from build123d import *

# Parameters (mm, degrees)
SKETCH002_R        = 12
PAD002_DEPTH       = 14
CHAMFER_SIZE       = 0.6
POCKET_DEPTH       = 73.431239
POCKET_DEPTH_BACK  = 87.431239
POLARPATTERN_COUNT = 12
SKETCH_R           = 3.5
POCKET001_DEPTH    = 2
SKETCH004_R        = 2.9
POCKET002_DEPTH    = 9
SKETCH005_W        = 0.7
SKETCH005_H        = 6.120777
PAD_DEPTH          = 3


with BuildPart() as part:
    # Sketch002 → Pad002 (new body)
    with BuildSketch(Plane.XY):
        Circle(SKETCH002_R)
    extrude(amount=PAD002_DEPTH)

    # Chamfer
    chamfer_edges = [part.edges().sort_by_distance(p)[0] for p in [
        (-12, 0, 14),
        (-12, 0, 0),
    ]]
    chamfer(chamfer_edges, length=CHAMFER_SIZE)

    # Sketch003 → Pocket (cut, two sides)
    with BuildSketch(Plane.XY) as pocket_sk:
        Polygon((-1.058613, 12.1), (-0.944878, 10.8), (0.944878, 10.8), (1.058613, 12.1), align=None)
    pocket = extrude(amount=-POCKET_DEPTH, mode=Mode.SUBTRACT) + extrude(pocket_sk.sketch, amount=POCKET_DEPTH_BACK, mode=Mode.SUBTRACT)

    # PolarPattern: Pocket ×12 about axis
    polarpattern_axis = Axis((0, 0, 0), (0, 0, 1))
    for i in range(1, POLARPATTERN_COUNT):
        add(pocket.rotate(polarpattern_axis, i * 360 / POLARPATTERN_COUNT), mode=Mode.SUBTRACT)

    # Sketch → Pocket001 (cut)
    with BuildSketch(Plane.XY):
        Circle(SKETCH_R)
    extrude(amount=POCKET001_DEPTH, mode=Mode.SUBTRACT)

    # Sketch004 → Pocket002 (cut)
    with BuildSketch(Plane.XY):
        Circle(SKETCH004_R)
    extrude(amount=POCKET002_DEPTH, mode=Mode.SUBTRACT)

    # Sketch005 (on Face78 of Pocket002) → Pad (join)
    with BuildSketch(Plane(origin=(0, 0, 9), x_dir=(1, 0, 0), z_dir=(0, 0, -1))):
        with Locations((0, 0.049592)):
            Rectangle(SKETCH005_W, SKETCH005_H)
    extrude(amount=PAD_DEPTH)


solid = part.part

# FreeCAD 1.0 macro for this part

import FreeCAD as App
import Part
import Sketcher

V = App.Vector
Q = App.Units.Quantity


def edges_at(feature, points):
    """Names of the edges that pass closest to the given points."""
    edges = feature.Shape.Edges
    near = lambda p: min(range(len(edges)), key=lambda i: edges[i].distToShape(Part.Vertex(*p))[0])
    return sorted({f"Edge{near(p) + 1}" for p in points})

doc = App.newDocument("Part")
body = doc.addObject("PartDesign::Body", "Body")

# Sketch on XY plane
sketch1 = body.newObject("Sketcher::SketchObject", "Sketch")
sketch1.AttachmentSupport = (doc.getObject("XY_Plane"), [""])
sketch1.MapMode = "FlatFace"
sketch1.addGeometry(Part.Circle(V(0, 0, 0), V(0, 0, 1), 12), False)
sketch1.addConstraint(Sketcher.Constraint("Coincident", 0, 3, -1, 1))
sketch1.addConstraint(Sketcher.Constraint("Diameter", 0, 24.0))
pad1 = body.newObject("PartDesign::Pad", "Pad")
pad1.Profile = sketch1
pad1.Length = 14
doc.recompute()

chamfer = body.newObject("PartDesign::Chamfer", "Chamfer")
chamfer.Base = (pad1, edges_at(pad1, [(-12, 0, 14), (-12, 0, 0)]))
chamfer.Size = 0.6

# Sketch on XY plane
sketch2 = body.newObject("Sketcher::SketchObject", "Sketch001")
sketch2.AttachmentSupport = (doc.getObject("XY_Plane"), [""])
sketch2.MapMode = "FlatFace"
sketch2.addGeometry(Part.LineSegment(V(-1.058613, 12.1, 0), V(-0.944878, 10.8, 0)), False)
sketch2.addGeometry(Part.LineSegment(V(-0.944878, 10.8, 0), V(0.944878, 10.8, 0)), False)
sketch2.addGeometry(Part.LineSegment(V(0.944878, 10.8, 0), V(1.058613, 12.1, 0)), False)
sketch2.addGeometry(Part.LineSegment(V(1.058613, 12.1, 0), V(-1.058613, 12.1, 0)), False)
sketch2.addConstraint(Sketcher.Constraint("Coincident", 0, 2, 1, 1))
sketch2.addConstraint(Sketcher.Constraint("Coincident", 1, 2, 2, 1))
sketch2.addConstraint(Sketcher.Constraint("Coincident", 2, 2, 3, 1))
sketch2.addConstraint(Sketcher.Constraint("Coincident", 3, 2, 0, 1))
sketch2.addConstraint(Sketcher.Constraint("Horizontal", 1))
sketch2.addConstraint(Sketcher.Constraint("Horizontal", 3))
sketch2.addConstraint(Sketcher.Constraint("Equal", 0, 2))
sketch2.addConstraint(Sketcher.Constraint("Angle", 0, Q("-85.000011 deg")))
sketch2.addConstraint(Sketcher.Constraint("DistanceY", -1, 1, 0, 2, 10.8))
sketch2.addConstraint(Sketcher.Constraint("DistanceY", -1, 1, 2, 2, 12.1))
sketch2.addConstraint(Sketcher.Constraint("DistanceX", 1, 1, 1, 2, 1.889756))
sketch2.addConstraint(Sketcher.Constraint("DistanceX", 0, 2, -1, 1, 0.944878))
pocket1 = body.newObject("PartDesign::Pocket", "Pocket")
pocket1.Profile = sketch2
pocket1.Type = "ThroughAll"
pocket1.Midplane = True
doc.recompute()

polarpattern = body.newObject("PartDesign::PolarPattern", "PolarPattern")
polarpattern.Originals = [pocket1]
polarpattern.Axis = (doc.getObject("Z_Axis"), [""])
polarpattern.Angle = 360
polarpattern.Occurrences = 12
body.Tip = polarpattern

# Sketch on XY plane
sketch3 = body.newObject("Sketcher::SketchObject", "Sketch002")
sketch3.AttachmentSupport = (doc.getObject("XY_Plane"), [""])
sketch3.MapMode = "FlatFace"
sketch3.addGeometry(Part.Circle(V(0, 0, 0), V(0, 0, 1), 3.5), False)
sketch3.addConstraint(Sketcher.Constraint("Coincident", 0, 3, -1, 1))
sketch3.addConstraint(Sketcher.Constraint("Diameter", 0, 7.0))
pocket2 = body.newObject("PartDesign::Pocket", "Pocket001")
pocket2.Profile = sketch3
pocket2.Length = 2
pocket2.Reversed = True

# Sketch on XY plane
sketch4 = body.newObject("Sketcher::SketchObject", "Sketch003")
sketch4.AttachmentSupport = (doc.getObject("XY_Plane"), [""])
sketch4.MapMode = "FlatFace"
sketch4.addGeometry(Part.Circle(V(0, 0, 0), V(0, 0, 1), 2.9), False)
sketch4.addConstraint(Sketcher.Constraint("Coincident", 0, 3, -1, 1))
sketch4.addConstraint(Sketcher.Constraint("Diameter", 0, 5.8))
pocket3 = body.newObject("PartDesign::Pocket", "Pocket002")
pocket3.Profile = sketch4
pocket3.Length = 9
pocket3.Reversed = True

# Sketch on XY plane
sketch5 = body.newObject("Sketcher::SketchObject", "Sketch004")
sketch5.AttachmentSupport = (doc.getObject("XY_Plane"), [""])
sketch5.MapMode = "FlatFace"
sketch5.AttachmentOffset = App.Placement(V(0, 0, 9), App.Rotation())
sketch5.addGeometry(Part.LineSegment(V(-0.35, -3.10998, 0), V(-0.35, 3.010797, 0)), False)
sketch5.addGeometry(Part.LineSegment(V(-0.35, 3.010797, 0), V(0.35, 3.010797, 0)), False)
sketch5.addGeometry(Part.LineSegment(V(0.35, 3.010797, 0), V(0.35, -3.10998, 0)), False)
sketch5.addGeometry(Part.LineSegment(V(0.35, -3.10998, 0), V(-0.35, -3.10998, 0)), False)
sketch5.addConstraint(Sketcher.Constraint("Coincident", 0, 2, 1, 1))
sketch5.addConstraint(Sketcher.Constraint("Coincident", 1, 2, 2, 1))
sketch5.addConstraint(Sketcher.Constraint("Coincident", 2, 2, 3, 1))
sketch5.addConstraint(Sketcher.Constraint("Coincident", 3, 2, 0, 1))
sketch5.addConstraint(Sketcher.Constraint("Vertical", 0))
sketch5.addConstraint(Sketcher.Constraint("Horizontal", 1))
sketch5.addConstraint(Sketcher.Constraint("Vertical", 2))
sketch5.addConstraint(Sketcher.Constraint("Horizontal", 3))
sketch5.addConstraint(Sketcher.Constraint("DistanceX", 1, 1, 1, 2, 0.7))
sketch5.addConstraint(Sketcher.Constraint("DistanceX", 0, 2, -1, 1, 0.35))
sketch5.addConstraint(Sketcher.Constraint("DistanceY", 0, 1, 0, 2, 6.120777))
sketch5.addConstraint(Sketcher.Constraint("DistanceY", 2, 2, -1, 1, 3.10998))
pad2 = body.newObject("PartDesign::Pad", "Pad001")
pad2.Profile = sketch5
pad2.Length = 3
pad2.Reversed = True

doc.recompute()
